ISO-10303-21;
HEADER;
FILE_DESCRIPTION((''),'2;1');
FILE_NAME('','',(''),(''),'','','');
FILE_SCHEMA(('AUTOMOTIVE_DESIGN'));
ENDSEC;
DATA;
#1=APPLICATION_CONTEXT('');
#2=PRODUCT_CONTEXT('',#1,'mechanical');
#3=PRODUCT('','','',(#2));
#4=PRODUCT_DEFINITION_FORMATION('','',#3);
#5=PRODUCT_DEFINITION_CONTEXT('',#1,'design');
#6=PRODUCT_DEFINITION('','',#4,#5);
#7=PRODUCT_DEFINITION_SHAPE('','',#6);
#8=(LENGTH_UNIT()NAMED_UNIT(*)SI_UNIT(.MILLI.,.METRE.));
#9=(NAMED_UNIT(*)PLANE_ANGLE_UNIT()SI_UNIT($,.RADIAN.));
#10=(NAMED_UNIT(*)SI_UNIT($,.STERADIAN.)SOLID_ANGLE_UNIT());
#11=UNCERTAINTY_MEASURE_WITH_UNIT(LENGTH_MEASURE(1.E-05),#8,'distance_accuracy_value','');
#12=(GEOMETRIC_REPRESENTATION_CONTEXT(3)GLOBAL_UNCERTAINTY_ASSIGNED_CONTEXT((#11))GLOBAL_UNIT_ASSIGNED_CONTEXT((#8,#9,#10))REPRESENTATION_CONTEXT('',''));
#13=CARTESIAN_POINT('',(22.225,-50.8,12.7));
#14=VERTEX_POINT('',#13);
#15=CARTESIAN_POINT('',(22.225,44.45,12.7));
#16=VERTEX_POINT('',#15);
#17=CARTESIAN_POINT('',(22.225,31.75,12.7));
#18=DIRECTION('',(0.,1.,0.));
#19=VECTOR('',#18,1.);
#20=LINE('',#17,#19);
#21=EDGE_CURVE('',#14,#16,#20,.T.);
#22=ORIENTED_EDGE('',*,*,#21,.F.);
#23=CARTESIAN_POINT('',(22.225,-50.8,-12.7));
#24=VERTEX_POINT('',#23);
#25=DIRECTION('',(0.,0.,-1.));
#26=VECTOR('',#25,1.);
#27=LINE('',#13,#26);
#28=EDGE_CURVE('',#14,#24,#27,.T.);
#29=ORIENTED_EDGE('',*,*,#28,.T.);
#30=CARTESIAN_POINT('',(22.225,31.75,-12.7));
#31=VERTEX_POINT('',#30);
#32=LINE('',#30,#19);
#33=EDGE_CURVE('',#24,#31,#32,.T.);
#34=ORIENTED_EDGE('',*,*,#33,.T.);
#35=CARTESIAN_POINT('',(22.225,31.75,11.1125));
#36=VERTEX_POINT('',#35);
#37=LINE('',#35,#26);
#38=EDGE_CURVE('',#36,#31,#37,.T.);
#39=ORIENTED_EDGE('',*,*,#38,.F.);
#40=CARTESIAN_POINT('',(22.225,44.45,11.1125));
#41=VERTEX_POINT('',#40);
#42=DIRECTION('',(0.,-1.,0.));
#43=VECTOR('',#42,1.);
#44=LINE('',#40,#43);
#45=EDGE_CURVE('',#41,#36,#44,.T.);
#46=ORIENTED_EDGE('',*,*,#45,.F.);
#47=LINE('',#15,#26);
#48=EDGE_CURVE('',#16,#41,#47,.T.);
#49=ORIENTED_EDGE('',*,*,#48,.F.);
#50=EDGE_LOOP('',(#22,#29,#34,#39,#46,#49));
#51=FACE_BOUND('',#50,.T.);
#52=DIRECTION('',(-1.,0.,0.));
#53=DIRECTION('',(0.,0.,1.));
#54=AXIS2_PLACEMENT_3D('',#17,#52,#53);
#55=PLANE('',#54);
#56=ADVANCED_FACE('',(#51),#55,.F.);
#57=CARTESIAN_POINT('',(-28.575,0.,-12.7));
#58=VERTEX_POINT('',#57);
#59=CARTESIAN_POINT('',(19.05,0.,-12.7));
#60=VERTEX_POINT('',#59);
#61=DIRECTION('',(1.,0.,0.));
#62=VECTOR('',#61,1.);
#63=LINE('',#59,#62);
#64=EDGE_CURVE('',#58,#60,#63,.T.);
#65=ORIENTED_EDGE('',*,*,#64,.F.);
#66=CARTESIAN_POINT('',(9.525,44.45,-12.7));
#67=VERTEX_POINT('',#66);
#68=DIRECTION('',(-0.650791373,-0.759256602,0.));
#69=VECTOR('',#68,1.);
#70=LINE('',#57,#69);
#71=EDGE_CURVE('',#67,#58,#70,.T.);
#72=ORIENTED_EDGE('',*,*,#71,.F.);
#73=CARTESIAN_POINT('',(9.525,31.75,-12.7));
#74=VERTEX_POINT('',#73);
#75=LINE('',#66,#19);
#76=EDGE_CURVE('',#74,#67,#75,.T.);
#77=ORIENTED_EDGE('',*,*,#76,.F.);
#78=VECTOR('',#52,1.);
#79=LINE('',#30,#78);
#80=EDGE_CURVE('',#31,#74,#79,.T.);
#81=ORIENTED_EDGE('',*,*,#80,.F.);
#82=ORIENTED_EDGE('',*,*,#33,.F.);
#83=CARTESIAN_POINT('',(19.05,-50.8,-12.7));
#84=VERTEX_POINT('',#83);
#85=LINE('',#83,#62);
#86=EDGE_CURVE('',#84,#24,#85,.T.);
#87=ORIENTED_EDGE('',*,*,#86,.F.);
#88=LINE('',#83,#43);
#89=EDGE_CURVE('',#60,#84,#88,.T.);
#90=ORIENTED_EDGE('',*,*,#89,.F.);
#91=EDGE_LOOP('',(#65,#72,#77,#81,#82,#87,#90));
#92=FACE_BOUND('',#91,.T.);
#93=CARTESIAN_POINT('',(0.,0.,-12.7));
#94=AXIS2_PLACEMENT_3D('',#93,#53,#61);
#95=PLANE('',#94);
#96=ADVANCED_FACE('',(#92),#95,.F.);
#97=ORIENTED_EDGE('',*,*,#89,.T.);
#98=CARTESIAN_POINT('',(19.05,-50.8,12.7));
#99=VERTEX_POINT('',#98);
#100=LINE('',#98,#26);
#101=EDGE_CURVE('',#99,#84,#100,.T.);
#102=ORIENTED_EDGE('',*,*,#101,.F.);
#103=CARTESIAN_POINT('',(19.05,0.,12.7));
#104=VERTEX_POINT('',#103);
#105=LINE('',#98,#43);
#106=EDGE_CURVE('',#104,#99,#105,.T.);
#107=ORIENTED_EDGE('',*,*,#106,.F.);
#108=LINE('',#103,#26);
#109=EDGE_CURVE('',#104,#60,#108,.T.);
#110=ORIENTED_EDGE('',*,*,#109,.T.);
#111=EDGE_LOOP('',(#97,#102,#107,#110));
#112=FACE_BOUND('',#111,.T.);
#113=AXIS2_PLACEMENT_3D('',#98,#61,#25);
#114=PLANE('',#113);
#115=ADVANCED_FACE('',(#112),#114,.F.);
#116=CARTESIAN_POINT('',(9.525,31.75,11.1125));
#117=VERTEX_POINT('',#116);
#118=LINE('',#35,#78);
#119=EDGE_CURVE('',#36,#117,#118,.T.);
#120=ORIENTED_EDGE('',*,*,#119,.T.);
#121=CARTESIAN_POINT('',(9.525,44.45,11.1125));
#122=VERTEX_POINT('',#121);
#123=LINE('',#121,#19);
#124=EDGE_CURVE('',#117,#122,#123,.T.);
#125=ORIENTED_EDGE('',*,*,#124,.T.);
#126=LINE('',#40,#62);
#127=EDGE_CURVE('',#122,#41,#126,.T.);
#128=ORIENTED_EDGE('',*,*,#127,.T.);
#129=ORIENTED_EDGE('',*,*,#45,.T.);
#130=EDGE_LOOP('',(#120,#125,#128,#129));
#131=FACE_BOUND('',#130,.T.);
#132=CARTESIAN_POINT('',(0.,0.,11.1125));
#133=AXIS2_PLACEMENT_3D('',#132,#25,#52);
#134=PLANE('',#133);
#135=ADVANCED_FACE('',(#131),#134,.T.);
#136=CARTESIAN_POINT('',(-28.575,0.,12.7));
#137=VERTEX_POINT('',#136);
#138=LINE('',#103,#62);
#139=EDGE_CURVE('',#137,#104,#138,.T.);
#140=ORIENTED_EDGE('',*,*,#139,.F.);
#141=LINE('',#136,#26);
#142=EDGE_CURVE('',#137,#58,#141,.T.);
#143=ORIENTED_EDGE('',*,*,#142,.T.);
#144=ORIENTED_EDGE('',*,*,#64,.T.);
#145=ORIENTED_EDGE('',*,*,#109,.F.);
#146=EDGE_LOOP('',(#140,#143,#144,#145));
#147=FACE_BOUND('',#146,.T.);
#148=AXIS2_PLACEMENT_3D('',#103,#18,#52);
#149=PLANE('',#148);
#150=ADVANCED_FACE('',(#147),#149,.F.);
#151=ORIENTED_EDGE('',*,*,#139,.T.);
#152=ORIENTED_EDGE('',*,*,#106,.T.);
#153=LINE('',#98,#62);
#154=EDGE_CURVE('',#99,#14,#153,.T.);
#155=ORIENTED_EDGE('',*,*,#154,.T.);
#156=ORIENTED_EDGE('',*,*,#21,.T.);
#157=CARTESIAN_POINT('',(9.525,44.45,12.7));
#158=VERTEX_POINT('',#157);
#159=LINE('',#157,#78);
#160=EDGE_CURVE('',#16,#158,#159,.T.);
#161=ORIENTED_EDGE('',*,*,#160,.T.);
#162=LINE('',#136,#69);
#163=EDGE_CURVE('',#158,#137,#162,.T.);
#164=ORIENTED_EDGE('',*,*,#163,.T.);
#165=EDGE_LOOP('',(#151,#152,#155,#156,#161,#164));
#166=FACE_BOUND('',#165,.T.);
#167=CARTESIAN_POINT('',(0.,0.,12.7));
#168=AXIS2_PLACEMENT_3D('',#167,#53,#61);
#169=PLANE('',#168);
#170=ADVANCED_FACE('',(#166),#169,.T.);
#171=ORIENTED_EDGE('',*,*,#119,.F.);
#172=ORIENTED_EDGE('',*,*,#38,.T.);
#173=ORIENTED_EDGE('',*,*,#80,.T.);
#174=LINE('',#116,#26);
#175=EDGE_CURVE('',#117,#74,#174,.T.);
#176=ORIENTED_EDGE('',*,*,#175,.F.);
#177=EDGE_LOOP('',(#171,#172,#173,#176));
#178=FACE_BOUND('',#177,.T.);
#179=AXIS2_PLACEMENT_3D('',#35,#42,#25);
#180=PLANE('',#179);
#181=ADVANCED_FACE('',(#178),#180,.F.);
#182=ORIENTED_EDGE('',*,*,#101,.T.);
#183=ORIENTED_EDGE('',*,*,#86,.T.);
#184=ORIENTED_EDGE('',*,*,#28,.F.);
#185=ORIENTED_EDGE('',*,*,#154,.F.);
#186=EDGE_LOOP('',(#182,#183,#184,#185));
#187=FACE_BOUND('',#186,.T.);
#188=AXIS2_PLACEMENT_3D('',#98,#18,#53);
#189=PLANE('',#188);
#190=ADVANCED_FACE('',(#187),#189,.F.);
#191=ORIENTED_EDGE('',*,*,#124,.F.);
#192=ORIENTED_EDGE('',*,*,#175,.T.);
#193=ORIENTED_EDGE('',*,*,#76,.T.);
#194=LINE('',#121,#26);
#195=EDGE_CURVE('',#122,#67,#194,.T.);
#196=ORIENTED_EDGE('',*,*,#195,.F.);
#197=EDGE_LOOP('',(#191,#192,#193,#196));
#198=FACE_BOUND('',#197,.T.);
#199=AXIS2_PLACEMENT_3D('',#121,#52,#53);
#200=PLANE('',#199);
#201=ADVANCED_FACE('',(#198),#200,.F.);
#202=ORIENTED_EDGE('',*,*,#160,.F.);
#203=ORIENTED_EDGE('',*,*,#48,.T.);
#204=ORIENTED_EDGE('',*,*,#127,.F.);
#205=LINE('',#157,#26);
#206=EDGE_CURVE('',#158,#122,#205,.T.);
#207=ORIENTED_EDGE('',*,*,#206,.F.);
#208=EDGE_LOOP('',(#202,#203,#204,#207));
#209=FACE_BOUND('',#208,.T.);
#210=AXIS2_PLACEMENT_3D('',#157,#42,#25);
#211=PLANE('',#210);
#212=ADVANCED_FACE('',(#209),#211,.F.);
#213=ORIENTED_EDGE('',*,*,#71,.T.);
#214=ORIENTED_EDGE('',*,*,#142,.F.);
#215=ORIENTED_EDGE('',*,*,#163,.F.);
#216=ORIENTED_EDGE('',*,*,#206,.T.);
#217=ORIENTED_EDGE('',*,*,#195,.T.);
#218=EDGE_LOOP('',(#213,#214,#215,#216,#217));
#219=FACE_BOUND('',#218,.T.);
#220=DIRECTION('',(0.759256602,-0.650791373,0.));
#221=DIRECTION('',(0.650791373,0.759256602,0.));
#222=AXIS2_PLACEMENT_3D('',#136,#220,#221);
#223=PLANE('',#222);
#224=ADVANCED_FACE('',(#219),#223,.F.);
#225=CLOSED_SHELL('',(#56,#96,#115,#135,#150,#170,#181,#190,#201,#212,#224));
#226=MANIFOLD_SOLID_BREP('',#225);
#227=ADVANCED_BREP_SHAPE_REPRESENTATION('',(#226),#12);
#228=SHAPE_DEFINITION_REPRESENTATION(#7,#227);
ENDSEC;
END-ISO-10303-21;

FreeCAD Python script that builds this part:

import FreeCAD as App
import Part
import Sketcher
from FreeCAD import Vector
Q = App.Units.Quantity

doc = App.newDocument("Part")
params = doc.addObject("Spreadsheet::Sheet", "Params")
for row, (alias, value) in enumerate([
    ("sketch1_height", "2 in"),
    ("sketch1_width", "0.5 in"),
    ("sketch1_height2", "3.75 in"),
    ("sketch1_width2", "0.125 in"),
    ("pad1_length", "1 in"),
    ("sketch2_width", "0.5 in"),
    ("pocket1_length", "0.9375 in"),
], start=1):
    params.set(f"A{row}", alias)
    params.set(f"B{row}", "=" + value)
    params.setAlias(f"B{row}", alias)

body = doc.addObject("PartDesign::Body", "Body")

sketch1 = body.newObject("Sketcher::SketchObject", "Sketch")
sketch1.AttachmentSupport = (doc.getObject("XY_Plane"), [""])
sketch1.MapMode = "FlatFace"
sketch1.addGeometry(Part.LineSegment(Vector(19.1, 0, 0), Vector(19.1, -50.8, 0)), False)
sketch1.addGeometry(Part.LineSegment(Vector(19.1, -50.8, 0), Vector(22.2, -50.8, 0)), False)
sketch1.addGeometry(Part.LineSegment(Vector(22.2, -50.8, 0), Vector(22.2, 44.5, 0)), False)
sketch1.addGeometry(Part.LineSegment(Vector(22.2, 44.5, 0), Vector(9.5, 44.5, 0)), False)
sketch1.addGeometry(Part.LineSegment(Vector(9.5, 44.5, 0), Vector(-28.6, 0, 0)), False)
sketch1.addGeometry(Part.LineSegment(Vector(-28.6, 0, 0), Vector(19.1, 0, 0)), False)
sketch1.addConstraint(Sketcher.Constraint("Coincident", 0, 2, 1, 1))
sketch1.addConstraint(Sketcher.Constraint("Coincident", 1, 2, 2, 1))
sketch1.addConstraint(Sketcher.Constraint("Coincident", 2, 2, 3, 1))
sketch1.addConstraint(Sketcher.Constraint("Coincident", 3, 2, 4, 1))
sketch1.addConstraint(Sketcher.Constraint("Coincident", 4, 2, 5, 1))
sketch1.addConstraint(Sketcher.Constraint("Coincident", 5, 2, 0, 1))
sketch1.addConstraint(Sketcher.Constraint("Vertical", 0))
sketch1.addConstraint(Sketcher.Constraint("Horizontal", 1))
sketch1.addConstraint(Sketcher.Constraint("Vertical", 2))
sketch1.addConstraint(Sketcher.Constraint("Horizontal", 3))
sketch1.addConstraint(Sketcher.Constraint("Horizontal", 5))
sketch1.addConstraint(Sketcher.Constraint("PointOnObject", 4, 2, -1))
sketch1.addConstraint(Sketcher.Constraint("DistanceY", 0, 2, 0, 1, Q("2 in")))
sketch1.addConstraint(Sketcher.Constraint("DistanceX", 3, 2, 3, 1, Q("0.5 in")))
sketch1.addConstraint(Sketcher.Constraint("DistanceX", 4, 2, 2, 2, Q("2 in")))
sketch1.addConstraint(Sketcher.Constraint("DistanceY", 2, 1, 2, 2, Q("3.75 in")))
sketch1.addConstraint(Sketcher.Constraint("DistanceX", 1, 1, 1, 2, Q("0.125 in")))
sketch1.addConstraint(Sketcher.Constraint("DistanceX", -1, 1, 0, 2, Q("0.75 in")))
sketch1.setExpression("Constraints[12]", "Params.sketch1_height")
sketch1.setExpression("Constraints[13]", "Params.sketch1_width")
sketch1.setExpression("Constraints[15]", "Params.sketch1_height2")
sketch1.setExpression("Constraints[16]", "Params.sketch1_width2")
pad1 = body.newObject("PartDesign::Pad", "Pad")
pad1.Profile = sketch1
pad1.setExpression("Length", "Params.pad1_length")
pad1.Midplane = True

sketch2 = body.newObject("Sketcher::SketchObject", "Sketch001")
sketch2.AttachmentSupport = (doc.getObject("XY_Plane"), [""])
sketch2.MapMode = "FlatFace"
sketch2.AttachmentOffset = App.Placement(Vector(0, 0, -0.5 * 25.4), App.Rotation())
sketch2.addGeometry(Part.LineSegment(Vector(22, 44, 0), Vector(22, 32, 0)), False)
sketch2.addGeometry(Part.LineSegment(Vector(22, 32, 0), Vector(10, 32, 0)), False)
sketch2.addGeometry(Part.LineSegment(Vector(10, 32, 0), Vector(10, 44, 0)), False)
sketch2.addGeometry(Part.LineSegment(Vector(10, 44, 0), Vector(22, 44, 0)), False)
sketch2.addConstraint(Sketcher.Constraint("Coincident", 0, 2, 1, 1))
sketch2.addConstraint(Sketcher.Constraint("Coincident", 1, 2, 2, 1))
sketch2.addConstraint(Sketcher.Constraint("Coincident", 2, 2, 3, 1))
sketch2.addConstraint(Sketcher.Constraint("Coincident", 3, 2, 0, 1))
sketch2.addConstraint(Sketcher.Constraint("Vertical", 0))
sketch2.addConstraint(Sketcher.Constraint("Horizontal", 1))
sketch2.addConstraint(Sketcher.Constraint("Vertical", 2))
sketch2.addConstraint(Sketcher.Constraint("Horizontal", 3))
sketch2.addConstraint(Sketcher.Constraint("Equal", 3, 0))
sketch2.addConstraint(Sketcher.Constraint("DistanceX", 1, 2, 1, 1, Q("0.5 in")))
sketch2.addConstraint(Sketcher.Constraint("DistanceY", -1, 1, 0, 2, Q("1.25 in")))
sketch2.addConstraint(Sketcher.Constraint("DistanceX", -1, 1, 0, 2, Q("0.875 in")))
sketch2.setExpression("Constraints[9]", "Params.sketch2_width")
pocket1 = body.newObject("PartDesign::Pocket", "Pocket")
pocket1.Profile = sketch2
pocket1.setExpression("Length", "Params.pocket1_length")
pocket1.Reversed = True

doc.recompute()
